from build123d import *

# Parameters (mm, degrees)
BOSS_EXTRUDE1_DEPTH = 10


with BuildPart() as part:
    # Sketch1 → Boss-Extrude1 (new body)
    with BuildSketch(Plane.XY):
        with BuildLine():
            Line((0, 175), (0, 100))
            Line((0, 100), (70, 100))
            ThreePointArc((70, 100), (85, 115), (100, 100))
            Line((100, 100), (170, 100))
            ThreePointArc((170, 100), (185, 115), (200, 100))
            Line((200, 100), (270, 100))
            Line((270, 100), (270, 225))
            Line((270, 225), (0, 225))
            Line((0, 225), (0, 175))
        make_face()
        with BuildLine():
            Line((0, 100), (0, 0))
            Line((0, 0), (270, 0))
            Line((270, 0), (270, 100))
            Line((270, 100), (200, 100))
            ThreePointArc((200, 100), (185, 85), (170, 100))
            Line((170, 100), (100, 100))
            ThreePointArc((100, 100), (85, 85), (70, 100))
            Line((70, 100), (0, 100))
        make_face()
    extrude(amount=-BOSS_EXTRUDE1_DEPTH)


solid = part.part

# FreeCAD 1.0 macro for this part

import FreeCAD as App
import Part
import Sketcher
from FreeCAD import Vector

doc = App.newDocument("Part")
body = doc.addObject("PartDesign::Body", "Body")

# Sketch on XY plane
sketch1 = body.newObject("Sketcher::SketchObject", "Sketch")
sketch1.AttachmentSupport = (doc.getObject("XY_Plane"), [""])
sketch1.MapMode = "FlatFace"
sketch1.addGeometry([
    Part.LineSegment(Vector(270, 225, 0), Vector(0, 225, 0)),  # 0
    Part.LineSegment(Vector(0, 225, 0), Vector(0, 0, 0)),  # 1
    Part.LineSegment(Vector(0, 0, 0), Vector(270, 0, 0)),  # 2
    Part.LineSegment(Vector(270, 0, 0), Vector(270, 225, 0)),  # 3
    Part.Circle(Vector(85, 100, 0), Vector(0, 0, 1), 15),  # 4
    Part.Circle(Vector(185, 100, 0), Vector(0, 0, 1), 15),  # 5
], False)
sketch1.addConstraint([
    Sketcher.Constraint("Coincident", 0, 2, 1, 1),
    Sketcher.Constraint("Coincident", 1, 2, 2, 1),
    Sketcher.Constraint("Coincident", 2, 2, 3, 1),
    Sketcher.Constraint("Coincident", 3, 2, 0, 1),
    Sketcher.Constraint("Horizontal", 0),
    Sketcher.Constraint("Vertical", 1),
    Sketcher.Constraint("Horizontal", 2),
    Sketcher.Constraint("Vertical", 3),
    Sketcher.Constraint("Coincident", 1, 2, -1, 1),
    Sketcher.Constraint("Equal", 4, 5),
    Sketcher.Constraint("Horizontal", 4, 3, 5, 3),
    Sketcher.Constraint("Diameter", 4, 30.0),
    Sketcher.Constraint("DistanceX", 0, 2, 0, 1, 270.0),
    Sketcher.Constraint("DistanceY", 1, 2, 1, 1, 225.0),
    Sketcher.Constraint("DistanceX", -1, 1, 4, 3, 85.0),
    Sketcher.Constraint("DistanceY", -1, 1, 4, 3, 100.0),
    Sketcher.Constraint("DistanceX", -1, 1, 5, 3, 185.0),
])
pad1 = body.newObject("PartDesign::Pad", "Pad")
pad1.Profile = sketch1
pad1.Length = 10
pad1.Reversed = True

doc.recompute()
